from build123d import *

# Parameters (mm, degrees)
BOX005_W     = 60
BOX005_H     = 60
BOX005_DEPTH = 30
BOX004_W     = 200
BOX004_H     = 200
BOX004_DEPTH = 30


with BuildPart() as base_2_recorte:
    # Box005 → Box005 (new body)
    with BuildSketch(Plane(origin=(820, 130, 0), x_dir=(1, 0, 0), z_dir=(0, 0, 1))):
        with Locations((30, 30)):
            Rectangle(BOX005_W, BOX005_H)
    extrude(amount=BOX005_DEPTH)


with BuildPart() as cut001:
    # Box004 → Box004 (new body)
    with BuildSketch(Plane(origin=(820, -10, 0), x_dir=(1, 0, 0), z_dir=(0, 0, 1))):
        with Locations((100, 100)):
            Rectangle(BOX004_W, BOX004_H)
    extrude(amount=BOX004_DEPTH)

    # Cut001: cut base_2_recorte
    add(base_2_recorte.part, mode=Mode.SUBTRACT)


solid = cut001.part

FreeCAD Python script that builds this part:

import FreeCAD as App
import Part
import Sketcher

V = App.Vector
Q = App.Units.Quantity


def add_polygon(sketch, points):
    """Adds a closed chain of lines whose ends are joined by coincident constraints."""
    first, n = sketch.GeometryCount, len(points)
    for a, b in zip(points, points[1:] + points[:1]):
        sketch.addGeometry(Part.LineSegment(App.Vector(*a, 0), App.Vector(*b, 0)), False)
    for i in range(n):
        sketch.addConstraint(Sketcher.Constraint("Coincident", first + i, 2, first + (i + 1) % n, 1))

doc = App.newDocument("Part")
params = doc.addObject("Spreadsheet::Sheet", "Params")
for row, (alias, value) in enumerate([
    ("sketch1_width", "60 mm"),
    ("pad1_length", "30 mm"),
    ("sketch2_width", "200 mm"),
    ("pad2_length", "30 mm"),
], start=1):
    params.set(f"A{row}", alias)
    params.set(f"B{row}", "=" + value)
    params.setAlias(f"B{row}", alias)

body = doc.addObject("PartDesign::Body", "Body")

# Sketch on XY plane
sketch1 = body.newObject("Sketcher::SketchObject", "Sketch")
sketch1.AttachmentSupport = (doc.getObject("XY_Plane"), [""])
sketch1.MapMode = "FlatFace"
add_polygon(sketch1, [(820, 190), (820, 130), (880, 130), (880, 190)])  # lines 0-3
sketch1.addConstraint([
    Sketcher.Constraint("Vertical", 0),
    Sketcher.Constraint("Horizontal", 1),
    Sketcher.Constraint("Vertical", 2),
    Sketcher.Constraint("Horizontal", 3),
    Sketcher.Constraint("Equal", 3, 0),
    Sketcher.Constraint("DistanceX", 1, 1, 1, 2, Q("60 mm")),
    Sketcher.Constraint("DistanceX", -1, 1, 0, 2, Q("820 mm")),
    Sketcher.Constraint("DistanceY", -1, 1, 0, 2, Q("130 mm")),
])
sketch1.setExpression("Constraints[9]", "Params.sketch1_width")
pad1 = body.newObject("PartDesign::Pad", "Pad")
pad1.Profile = sketch1
pad1.setExpression("Length", "Params.pad1_length")
body2 = doc.addObject("PartDesign::Body", "Body001")

# Sketch on XY plane
sketch2 = body2.newObject("Sketcher::SketchObject", "Sketch001")
sketch2.AttachmentSupport = (doc.getObject("XY_Plane001"), [""])
sketch2.MapMode = "FlatFace"
add_polygon(sketch2, [(820, 190), (820, -10), (1020, -10), (1020, 190)])  # lines 0-3
sketch2.addConstraint([
    Sketcher.Constraint("Vertical", 0),
    Sketcher.Constraint("Horizontal", 1),
    Sketcher.Constraint("Vertical", 2),
    Sketcher.Constraint("Horizontal", 3),
    Sketcher.Constraint("Equal", 3, 0),
    Sketcher.Constraint("DistanceX", 1, 1, 1, 2, Q("200 mm")),
    Sketcher.Constraint("DistanceX", -1, 1, 0, 2, Q("820 mm")),
    Sketcher.Constraint("DistanceY", 0, 2, -1, 1, Q("10 mm")),
])
sketch2.setExpression("Constraints[9]", "Params.sketch2_width")
pad2 = body2.newObject("PartDesign::Pad", "Pad001")
pad2.Profile = sketch2
pad2.setExpression("Length", "Params.pad2_length")
doc.recompute()

boolean = body2.newObject("PartDesign::Boolean", "Boolean")
boolean.Type = "Cut"
boolean.addObjects([body])

doc.recompute()
